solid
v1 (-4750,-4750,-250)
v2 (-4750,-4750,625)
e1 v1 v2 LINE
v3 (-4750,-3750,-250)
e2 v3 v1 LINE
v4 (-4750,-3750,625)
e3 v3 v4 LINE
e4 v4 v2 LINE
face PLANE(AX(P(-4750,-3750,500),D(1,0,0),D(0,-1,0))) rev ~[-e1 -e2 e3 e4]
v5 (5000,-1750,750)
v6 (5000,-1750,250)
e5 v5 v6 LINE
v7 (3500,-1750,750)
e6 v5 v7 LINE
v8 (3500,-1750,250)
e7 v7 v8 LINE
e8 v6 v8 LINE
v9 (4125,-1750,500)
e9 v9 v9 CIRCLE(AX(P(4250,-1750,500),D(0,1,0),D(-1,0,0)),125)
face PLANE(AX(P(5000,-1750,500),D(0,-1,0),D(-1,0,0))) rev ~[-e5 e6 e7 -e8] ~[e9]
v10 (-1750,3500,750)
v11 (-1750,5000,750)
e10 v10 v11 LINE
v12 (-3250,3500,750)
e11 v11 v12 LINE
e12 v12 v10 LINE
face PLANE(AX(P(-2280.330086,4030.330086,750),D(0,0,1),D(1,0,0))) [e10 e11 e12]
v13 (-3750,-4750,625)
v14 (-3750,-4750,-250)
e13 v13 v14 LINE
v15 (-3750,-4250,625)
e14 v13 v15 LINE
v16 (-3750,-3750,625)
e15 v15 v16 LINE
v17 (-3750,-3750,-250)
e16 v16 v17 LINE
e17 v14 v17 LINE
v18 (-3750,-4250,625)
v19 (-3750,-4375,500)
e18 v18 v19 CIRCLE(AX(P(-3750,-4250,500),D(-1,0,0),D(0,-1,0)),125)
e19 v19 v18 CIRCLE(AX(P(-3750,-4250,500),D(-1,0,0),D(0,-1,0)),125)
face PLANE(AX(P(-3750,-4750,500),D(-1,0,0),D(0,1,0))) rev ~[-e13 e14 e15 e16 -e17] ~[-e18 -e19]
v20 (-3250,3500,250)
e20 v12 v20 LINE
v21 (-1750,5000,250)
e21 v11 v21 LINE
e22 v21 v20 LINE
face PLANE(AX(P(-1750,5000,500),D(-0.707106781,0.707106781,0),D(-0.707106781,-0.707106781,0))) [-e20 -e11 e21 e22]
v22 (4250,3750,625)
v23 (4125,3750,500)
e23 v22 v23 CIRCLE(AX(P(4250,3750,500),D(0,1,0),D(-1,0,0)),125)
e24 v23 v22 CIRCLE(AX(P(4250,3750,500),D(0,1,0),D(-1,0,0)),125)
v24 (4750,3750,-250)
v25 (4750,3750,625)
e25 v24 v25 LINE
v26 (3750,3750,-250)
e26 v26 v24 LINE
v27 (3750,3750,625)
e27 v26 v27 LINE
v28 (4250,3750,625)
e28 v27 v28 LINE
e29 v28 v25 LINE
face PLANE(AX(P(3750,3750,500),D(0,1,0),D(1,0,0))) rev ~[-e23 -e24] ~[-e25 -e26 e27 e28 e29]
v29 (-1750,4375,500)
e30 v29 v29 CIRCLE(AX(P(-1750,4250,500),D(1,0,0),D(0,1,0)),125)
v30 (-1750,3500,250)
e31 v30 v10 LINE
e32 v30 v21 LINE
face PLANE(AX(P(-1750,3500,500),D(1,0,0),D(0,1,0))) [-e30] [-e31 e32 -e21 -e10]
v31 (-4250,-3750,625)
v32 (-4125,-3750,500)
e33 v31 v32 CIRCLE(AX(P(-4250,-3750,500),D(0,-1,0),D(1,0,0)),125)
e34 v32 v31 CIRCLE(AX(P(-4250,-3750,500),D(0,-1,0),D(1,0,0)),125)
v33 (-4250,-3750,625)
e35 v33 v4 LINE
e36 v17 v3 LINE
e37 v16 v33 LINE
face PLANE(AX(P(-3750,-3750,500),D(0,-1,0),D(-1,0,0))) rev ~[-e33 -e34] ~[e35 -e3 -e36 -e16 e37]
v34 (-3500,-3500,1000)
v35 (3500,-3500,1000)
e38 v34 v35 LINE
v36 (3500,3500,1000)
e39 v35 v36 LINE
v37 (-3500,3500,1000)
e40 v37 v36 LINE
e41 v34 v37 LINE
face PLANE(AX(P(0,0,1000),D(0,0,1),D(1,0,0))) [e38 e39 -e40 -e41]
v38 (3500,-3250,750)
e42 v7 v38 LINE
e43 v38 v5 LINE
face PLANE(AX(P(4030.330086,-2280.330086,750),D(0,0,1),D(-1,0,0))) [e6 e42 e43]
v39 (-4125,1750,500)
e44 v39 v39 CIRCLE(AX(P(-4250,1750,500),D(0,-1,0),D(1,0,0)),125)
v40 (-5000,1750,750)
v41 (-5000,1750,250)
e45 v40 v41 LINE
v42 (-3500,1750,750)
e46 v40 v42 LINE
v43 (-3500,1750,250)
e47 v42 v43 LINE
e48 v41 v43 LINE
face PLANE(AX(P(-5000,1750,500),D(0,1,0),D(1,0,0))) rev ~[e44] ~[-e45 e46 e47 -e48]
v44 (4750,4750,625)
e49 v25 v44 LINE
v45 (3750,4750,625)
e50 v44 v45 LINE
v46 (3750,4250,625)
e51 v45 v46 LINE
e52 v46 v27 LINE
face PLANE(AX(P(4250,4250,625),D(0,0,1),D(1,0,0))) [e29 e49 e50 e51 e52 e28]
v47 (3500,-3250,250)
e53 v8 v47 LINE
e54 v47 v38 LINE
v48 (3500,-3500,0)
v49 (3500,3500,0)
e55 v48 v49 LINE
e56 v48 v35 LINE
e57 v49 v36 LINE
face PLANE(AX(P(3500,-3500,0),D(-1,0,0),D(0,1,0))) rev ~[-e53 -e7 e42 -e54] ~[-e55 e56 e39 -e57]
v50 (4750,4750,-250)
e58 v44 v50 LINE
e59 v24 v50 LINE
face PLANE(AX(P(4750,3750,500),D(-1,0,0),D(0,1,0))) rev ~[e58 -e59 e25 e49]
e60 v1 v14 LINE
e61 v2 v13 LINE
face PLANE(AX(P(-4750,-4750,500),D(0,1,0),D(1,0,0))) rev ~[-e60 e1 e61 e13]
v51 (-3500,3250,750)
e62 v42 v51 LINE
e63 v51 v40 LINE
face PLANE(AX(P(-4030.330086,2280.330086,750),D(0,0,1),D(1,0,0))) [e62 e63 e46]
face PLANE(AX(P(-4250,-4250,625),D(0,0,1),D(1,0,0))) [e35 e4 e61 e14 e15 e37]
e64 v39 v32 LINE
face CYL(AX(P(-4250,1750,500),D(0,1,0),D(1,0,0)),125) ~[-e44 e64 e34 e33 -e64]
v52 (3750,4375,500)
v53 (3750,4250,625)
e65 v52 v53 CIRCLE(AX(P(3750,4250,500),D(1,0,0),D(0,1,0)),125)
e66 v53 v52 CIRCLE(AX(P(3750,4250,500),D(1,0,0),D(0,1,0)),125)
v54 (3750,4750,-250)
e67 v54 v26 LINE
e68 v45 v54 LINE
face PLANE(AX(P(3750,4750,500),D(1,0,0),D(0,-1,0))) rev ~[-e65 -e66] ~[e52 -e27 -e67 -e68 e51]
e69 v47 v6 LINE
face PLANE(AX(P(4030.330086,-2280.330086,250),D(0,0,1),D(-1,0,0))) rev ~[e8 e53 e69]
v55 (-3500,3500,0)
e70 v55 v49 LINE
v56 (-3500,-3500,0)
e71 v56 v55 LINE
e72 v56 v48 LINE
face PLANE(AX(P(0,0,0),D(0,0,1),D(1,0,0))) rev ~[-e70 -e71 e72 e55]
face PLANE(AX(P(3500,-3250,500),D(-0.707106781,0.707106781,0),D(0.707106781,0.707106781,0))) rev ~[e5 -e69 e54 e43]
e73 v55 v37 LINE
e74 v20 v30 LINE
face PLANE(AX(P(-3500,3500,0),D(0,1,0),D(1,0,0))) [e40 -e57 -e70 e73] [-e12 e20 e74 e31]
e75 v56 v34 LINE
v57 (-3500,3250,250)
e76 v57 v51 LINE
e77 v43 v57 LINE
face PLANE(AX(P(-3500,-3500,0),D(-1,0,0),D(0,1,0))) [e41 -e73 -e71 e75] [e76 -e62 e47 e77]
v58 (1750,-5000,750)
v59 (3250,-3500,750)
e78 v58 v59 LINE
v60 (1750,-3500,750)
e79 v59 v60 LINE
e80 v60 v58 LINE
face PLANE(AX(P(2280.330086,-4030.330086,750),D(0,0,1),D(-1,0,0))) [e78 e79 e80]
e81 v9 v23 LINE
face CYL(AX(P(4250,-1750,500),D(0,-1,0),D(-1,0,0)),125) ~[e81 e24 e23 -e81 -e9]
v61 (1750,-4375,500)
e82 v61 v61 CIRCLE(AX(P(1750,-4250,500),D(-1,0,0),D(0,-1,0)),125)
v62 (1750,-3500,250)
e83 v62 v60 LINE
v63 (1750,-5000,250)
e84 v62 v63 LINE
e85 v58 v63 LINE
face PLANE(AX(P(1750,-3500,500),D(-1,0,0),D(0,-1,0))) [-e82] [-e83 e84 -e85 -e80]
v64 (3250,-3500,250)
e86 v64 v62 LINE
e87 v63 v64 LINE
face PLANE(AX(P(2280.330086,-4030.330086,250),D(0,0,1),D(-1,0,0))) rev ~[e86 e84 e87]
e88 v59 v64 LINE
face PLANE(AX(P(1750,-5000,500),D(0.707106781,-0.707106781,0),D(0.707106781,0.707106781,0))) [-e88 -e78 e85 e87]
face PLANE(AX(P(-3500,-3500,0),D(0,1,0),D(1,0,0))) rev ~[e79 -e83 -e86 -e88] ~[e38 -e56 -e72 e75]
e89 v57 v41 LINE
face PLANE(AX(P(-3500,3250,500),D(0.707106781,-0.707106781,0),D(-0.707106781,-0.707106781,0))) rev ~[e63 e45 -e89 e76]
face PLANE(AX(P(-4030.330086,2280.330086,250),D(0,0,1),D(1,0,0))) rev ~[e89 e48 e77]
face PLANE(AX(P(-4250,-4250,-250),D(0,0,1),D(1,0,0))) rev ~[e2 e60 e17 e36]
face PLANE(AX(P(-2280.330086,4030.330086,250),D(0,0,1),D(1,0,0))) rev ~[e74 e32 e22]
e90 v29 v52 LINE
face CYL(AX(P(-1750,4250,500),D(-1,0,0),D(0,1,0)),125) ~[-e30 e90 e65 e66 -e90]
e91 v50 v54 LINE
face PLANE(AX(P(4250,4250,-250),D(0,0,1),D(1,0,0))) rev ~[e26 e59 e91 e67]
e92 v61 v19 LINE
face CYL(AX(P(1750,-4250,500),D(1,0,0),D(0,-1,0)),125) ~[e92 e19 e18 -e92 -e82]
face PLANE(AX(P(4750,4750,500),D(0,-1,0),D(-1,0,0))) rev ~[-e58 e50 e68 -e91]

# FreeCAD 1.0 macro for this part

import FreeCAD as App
import Part
import Sketcher
from FreeCAD import Vector
Q = App.Units.Quantity


def add_polygon(sketch, points):
    """Adds a closed chain of lines whose ends are joined by coincident constraints."""
    first, n = sketch.GeometryCount, len(points)
    for a, b in zip(points, points[1:] + points[:1]):
        sketch.addGeometry(Part.LineSegment(App.Vector(*a, 0), App.Vector(*b, 0)), False)
    for i in range(n):
        sketch.addConstraint(Sketcher.Constraint("Coincident", first + i, 2, first + (i + 1) % n, 1))

doc = App.newDocument("Part")
body = doc.addObject("PartDesign::Body", "Body")

sketch1 = body.newObject("Sketcher::SketchObject", "Sketch")
sketch1.AttachmentSupport = (doc.getObject("XY_Plane"), [""])
sketch1.MapMode = "FlatFace"
add_polygon(sketch1, [(-3500, 3500), (-3500, -3500), (3500, -3500), (3500, 3500)])
sketch1.addConstraint([
    Sketcher.Constraint("Vertical", 0),
    Sketcher.Constraint("Horizontal", 1),
    Sketcher.Constraint("Vertical", 2),
    Sketcher.Constraint("Horizontal", 3),
    Sketcher.Constraint("Symmetric", 0, 2, 2, 2, -1, 1),
    Sketcher.Constraint("Equal", 3, 0),
    Sketcher.Constraint("DistanceX", 1, 1, 1, 2, Q("7000 mm")),
])
pad1 = body.newObject("PartDesign::Pad", "Pad")
pad1.Profile = sketch1
pad1.Length = 1000

sketch2 = body.newObject("Sketcher::SketchObject", "Sketch001")
sketch2.AttachmentSupport = (doc.getObject("XY_Plane"), [""])
sketch2.MapMode = "FlatFace"
sketch2.AttachmentOffset = App.Placement(Vector(0, 0, 500), App.Rotation())
add_polygon(sketch2, [(-3500, 1750), (-3500, 3250), (-5000, 1750)])
add_polygon(sketch2, [(-3250, 3500), (-1750, 3500), (-1750, 5000)])
sketch2.addConstraint([
    Sketcher.Constraint("Vertical", 0),
    Sketcher.Constraint("Horizontal", 2),
    Sketcher.Constraint("Horizontal", 3),
    Sketcher.Constraint("Vertical", 4),
    Sketcher.Constraint("Parallel", 1, 5),
    Sketcher.Constraint("Equal", 2, 3),
    Sketcher.Constraint("Equal", 3, 0),
    Sketcher.Constraint("DistanceX", 2, 1, 2, 2, Q("1500 mm")),
    Sketcher.Constraint("DistanceX", 0, 2, -1, 1, Q("3500 mm")),
    Sketcher.Constraint("DistanceY", -1, 1, 0, 2, Q("3250 mm")),
    Sketcher.Constraint("DistanceX", 3, 2, -1, 1, Q("1750 mm")),
    Sketcher.Constraint("DistanceY", -1, 1, 3, 2, Q("3500 mm")),
])
pad2 = body.newObject("PartDesign::Pad", "Pad001")
pad2.Profile = sketch2
pad2.Length = 500
pad2.Midplane = True
body2 = doc.addObject("PartDesign::Body", "Body001")

sketch3 = body2.newObject("Sketcher::SketchObject", "Sketch002")
sketch3.AttachmentSupport = (doc.getObject("XY_Plane001"), [""])
sketch3.MapMode = "FlatFace"
sketch3.AttachmentOffset = App.Placement(Vector(0, 0, 500), App.Rotation())
add_polygon(sketch3, [(-3750, -3750), (-4750, -3750), (-4750, -4750), (-3750, -4750)])
sketch3.addConstraint([
    Sketcher.Constraint("Horizontal", 0),
    Sketcher.Constraint("Vertical", 1),
    Sketcher.Constraint("Horizontal", 2),
    Sketcher.Constraint("Vertical", 3),
    Sketcher.Constraint("Equal", 2, 1),
    Sketcher.Constraint("DistanceX", 0, 2, 0, 1, Q("1000 mm")),
    Sketcher.Constraint("DistanceX", 0, 2, -1, 1, Q("4750 mm")),
    Sketcher.Constraint("DistanceY", 0, 2, -1, 1, Q("3750 mm")),
])
pad3 = body2.newObject("PartDesign::Pad", "Pad002")
pad3.Profile = sketch3
pad3.Type = "TwoLengths"
pad3.Length = 750
pad3.Length2 = 125
pad3.Reversed = True
body3 = doc.addObject("PartDesign::Body", "Body002")

sketch4 = body3.newObject("Sketcher::SketchObject", "Sketch003")
sketch4.AttachmentSupport = (doc.getObject("XY_Plane002"), [""])
sketch4.MapMode = "FlatFace"
sketch4.AttachmentOffset = App.Placement(Vector(0, 0, 500), App.Rotation())
add_polygon(sketch4, [(3750, 4750), (3750, 3750), (4750, 3750), (4750, 4750)])
sketch4.addConstraint([
    Sketcher.Constraint("Vertical", 0),
    Sketcher.Constraint("Horizontal", 1),
    Sketcher.Constraint("Vertical", 2),
    Sketcher.Constraint("Horizontal", 3),
    Sketcher.Constraint("Equal", 3, 0),
    Sketcher.Constraint("DistanceX", 1, 1, 1, 2, Q("1000 mm")),
    Sketcher.Constraint("DistanceX", -1, 1, 0, 2, Q("3750 mm")),
    Sketcher.Constraint("DistanceY", -1, 1, 0, 2, Q("3750 mm")),
])
pad4 = body3.newObject("PartDesign::Pad", "Pad003")
pad4.Profile = sketch4
pad4.Type = "TwoLengths"
pad4.Length = 750
pad4.Length2 = 125
pad4.Reversed = True
body.AllowCompound = True
doc.recompute()

boolean = body.newObject("PartDesign::Boolean", "Boolean")
boolean.Type = "Fuse"
boolean.addObjects([body2])

sketch5 = body.newObject("Sketcher::SketchObject", "Sketch004")
sketch5.AttachmentSupport = (doc.getObject("XZ_Plane"), [""])
sketch5.MapMode = "FlatFace"
sketch5.AttachmentOffset = App.Placement(Vector(0, 0, -1750), App.Rotation())
sketch5.addGeometry(Part.Circle(Vector(-4250, 500, 0), Vector(0, 0, 1), 125), False)
sketch5.addConstraint([
    Sketcher.Constraint("Diameter", 0, Q("250 mm")),
    Sketcher.Constraint("DistanceX", 0, 3, -1, 1, Q("4250 mm")),
    Sketcher.Constraint("DistanceY", -1, 1, 0, 3, Q("500 mm")),
])
pad5 = body.newObject("PartDesign::Pad", "Pad004")
pad5.Profile = sketch5
pad5.Type = "UpToLast"
doc.recompute()

boolean2 = body.newObject("PartDesign::Boolean", "Boolean001")
boolean2.Type = "Fuse"
boolean2.addObjects([body3])

sketch6 = body.newObject("Sketcher::SketchObject", "Sketch005")
sketch6.AttachmentSupport = (doc.getObject("YZ_Plane"), [""])
sketch6.MapMode = "FlatFace"
sketch6.AttachmentOffset = App.Placement(Vector(0, 0, -1750), App.Rotation())
sketch6.addGeometry(Part.Circle(Vector(4250, 500, 0), Vector(0, 0, 1), 125), False)
sketch6.addConstraint([
    Sketcher.Constraint("Diameter", 0, Q("250 mm")),
    Sketcher.Constraint("DistanceX", -1, 1, 0, 3, Q("4250 mm")),
    Sketcher.Constraint("DistanceY", -1, 1, 0, 3, Q("500 mm")),
])
pad6 = body.newObject("PartDesign::Pad", "Pad005")
pad6.Profile = sketch6
pad6.Type = "UpToLast"
body4 = doc.addObject("PartDesign::Body", "Body003")
doc.recompute()

body4.BaseFeature = body
doc.recompute()

body.Placement = App.Placement(Vector(0, 0, 0), App.Rotation(Vector(0, 0, 1), 180))
boolean3 = body4.newObject("PartDesign::Boolean", "Boolean002")
boolean3.Type = "Fuse"
boolean3.addObjects([body])

doc.recompute()
